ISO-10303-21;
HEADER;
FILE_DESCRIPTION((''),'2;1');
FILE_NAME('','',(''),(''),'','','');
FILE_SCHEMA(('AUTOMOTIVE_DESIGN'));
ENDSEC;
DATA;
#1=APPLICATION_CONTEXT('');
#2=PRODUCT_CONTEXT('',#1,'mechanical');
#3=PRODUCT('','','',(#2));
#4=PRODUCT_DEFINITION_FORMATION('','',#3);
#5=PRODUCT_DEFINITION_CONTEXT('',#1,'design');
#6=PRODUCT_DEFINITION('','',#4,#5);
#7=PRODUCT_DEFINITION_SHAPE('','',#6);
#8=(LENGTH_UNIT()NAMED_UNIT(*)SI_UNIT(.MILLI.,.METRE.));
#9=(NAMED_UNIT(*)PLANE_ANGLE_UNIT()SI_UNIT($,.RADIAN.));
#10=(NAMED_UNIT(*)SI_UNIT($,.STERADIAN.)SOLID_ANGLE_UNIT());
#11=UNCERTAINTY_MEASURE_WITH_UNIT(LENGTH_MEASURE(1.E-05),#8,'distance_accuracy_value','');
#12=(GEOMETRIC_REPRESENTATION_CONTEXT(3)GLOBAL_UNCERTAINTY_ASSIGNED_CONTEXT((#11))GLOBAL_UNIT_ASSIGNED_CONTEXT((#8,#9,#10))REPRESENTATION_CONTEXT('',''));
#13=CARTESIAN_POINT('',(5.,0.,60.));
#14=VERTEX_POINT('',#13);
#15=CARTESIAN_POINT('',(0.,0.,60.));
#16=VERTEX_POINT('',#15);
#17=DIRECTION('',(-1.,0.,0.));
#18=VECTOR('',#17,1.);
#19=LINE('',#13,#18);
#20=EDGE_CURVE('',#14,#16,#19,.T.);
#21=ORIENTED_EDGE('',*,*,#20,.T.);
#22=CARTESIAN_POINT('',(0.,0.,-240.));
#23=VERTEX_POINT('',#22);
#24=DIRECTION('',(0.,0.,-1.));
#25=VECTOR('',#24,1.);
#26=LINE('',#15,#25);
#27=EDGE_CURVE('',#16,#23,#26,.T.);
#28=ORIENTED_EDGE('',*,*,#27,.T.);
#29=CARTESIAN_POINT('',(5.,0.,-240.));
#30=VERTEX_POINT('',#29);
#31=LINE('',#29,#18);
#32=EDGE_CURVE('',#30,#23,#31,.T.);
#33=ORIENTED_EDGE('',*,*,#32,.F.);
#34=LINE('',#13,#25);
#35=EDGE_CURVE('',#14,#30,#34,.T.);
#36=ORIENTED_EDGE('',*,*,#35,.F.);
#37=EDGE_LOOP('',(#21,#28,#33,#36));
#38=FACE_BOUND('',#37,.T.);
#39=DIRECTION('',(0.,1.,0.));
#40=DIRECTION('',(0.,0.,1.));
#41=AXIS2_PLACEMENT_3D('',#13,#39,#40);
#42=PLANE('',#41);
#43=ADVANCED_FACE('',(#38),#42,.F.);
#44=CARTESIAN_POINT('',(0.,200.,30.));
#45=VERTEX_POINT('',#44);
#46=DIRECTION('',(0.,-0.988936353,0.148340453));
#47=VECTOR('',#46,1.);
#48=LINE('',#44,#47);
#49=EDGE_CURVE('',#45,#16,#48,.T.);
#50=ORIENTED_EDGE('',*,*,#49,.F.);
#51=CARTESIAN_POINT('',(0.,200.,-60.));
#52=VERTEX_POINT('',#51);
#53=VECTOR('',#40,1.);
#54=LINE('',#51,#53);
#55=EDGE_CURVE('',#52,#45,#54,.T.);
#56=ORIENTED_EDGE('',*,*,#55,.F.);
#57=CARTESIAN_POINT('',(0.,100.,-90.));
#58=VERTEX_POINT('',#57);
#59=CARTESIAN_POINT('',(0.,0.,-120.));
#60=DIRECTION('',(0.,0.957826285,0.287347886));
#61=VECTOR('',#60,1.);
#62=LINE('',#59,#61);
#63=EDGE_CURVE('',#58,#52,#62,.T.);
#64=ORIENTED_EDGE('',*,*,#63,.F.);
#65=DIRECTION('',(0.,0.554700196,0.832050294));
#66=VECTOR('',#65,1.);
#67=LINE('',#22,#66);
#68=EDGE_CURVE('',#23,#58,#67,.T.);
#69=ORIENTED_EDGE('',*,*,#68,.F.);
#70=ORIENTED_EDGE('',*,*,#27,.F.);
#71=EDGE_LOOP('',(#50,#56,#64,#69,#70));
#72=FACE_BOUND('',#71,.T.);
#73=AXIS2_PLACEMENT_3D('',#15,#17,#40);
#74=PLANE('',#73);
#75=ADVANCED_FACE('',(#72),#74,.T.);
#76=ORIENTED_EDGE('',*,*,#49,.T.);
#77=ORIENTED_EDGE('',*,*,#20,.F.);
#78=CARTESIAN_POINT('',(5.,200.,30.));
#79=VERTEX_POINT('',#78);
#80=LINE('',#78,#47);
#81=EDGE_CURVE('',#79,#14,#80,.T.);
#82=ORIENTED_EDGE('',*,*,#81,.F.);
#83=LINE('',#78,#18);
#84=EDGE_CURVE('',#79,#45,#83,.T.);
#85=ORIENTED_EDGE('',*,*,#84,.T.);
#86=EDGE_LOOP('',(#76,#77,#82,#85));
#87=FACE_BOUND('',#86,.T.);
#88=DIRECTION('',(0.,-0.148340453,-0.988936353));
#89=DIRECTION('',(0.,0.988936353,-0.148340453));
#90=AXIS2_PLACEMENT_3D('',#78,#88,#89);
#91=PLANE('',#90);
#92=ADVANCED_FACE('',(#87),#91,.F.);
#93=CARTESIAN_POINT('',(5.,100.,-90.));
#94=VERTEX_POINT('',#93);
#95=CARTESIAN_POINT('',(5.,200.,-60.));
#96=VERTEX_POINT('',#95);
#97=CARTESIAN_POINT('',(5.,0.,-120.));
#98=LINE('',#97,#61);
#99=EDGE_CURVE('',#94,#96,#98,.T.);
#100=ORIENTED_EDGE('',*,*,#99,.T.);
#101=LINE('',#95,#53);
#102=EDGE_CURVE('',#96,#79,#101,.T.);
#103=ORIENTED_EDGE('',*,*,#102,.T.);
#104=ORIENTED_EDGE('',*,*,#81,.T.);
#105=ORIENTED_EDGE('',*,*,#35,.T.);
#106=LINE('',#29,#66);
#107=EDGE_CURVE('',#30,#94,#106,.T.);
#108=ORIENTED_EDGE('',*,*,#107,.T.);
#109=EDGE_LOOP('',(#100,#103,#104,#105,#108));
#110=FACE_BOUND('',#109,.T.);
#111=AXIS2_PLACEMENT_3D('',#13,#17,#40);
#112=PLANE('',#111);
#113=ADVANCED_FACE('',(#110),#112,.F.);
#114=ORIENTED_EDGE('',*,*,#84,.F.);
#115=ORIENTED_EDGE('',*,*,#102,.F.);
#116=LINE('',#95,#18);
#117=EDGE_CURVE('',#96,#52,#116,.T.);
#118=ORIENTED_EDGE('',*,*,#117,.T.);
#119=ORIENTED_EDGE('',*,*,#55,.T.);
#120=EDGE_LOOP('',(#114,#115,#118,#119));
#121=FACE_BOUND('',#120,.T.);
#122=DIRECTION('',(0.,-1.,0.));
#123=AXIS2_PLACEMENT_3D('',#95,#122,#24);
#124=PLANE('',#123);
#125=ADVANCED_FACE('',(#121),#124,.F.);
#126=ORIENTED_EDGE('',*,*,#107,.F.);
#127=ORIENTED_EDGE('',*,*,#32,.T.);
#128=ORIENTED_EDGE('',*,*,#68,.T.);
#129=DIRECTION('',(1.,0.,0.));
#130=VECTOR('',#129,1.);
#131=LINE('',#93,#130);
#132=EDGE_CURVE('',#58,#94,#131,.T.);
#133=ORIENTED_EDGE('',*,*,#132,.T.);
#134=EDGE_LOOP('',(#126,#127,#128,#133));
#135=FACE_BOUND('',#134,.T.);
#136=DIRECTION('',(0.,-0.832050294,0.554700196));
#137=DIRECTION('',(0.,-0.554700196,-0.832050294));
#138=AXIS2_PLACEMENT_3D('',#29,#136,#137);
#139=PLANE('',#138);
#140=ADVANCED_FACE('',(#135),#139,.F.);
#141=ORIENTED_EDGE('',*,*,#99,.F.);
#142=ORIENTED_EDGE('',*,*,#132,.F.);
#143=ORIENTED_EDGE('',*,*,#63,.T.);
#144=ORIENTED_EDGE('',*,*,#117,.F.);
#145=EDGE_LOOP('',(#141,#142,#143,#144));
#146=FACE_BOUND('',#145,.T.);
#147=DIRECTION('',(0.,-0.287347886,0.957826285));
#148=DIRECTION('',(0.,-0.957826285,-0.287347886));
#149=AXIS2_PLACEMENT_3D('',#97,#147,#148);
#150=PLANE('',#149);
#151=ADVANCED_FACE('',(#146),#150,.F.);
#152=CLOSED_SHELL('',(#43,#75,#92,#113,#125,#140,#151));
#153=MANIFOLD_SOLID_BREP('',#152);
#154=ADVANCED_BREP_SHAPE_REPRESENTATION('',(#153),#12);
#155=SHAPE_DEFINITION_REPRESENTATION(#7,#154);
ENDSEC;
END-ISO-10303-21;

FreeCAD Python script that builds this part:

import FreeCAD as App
import Part
import Sketcher

V = App.Vector

doc = App.newDocument("Part")
body = doc.addObject("PartDesign::Body", "Body")

# Sketch on YZ plane
sketch1 = body.newObject("Sketcher::SketchObject", "Sketch")
sketch1.AttachmentSupport = (doc.getObject("YZ_Plane"), [""])
sketch1.MapMode = "FlatFace"
sketch1.addGeometry([
    Part.LineSegment(V(200, 30, 0), V(0, 60, 0)),  # 0
    Part.LineSegment(V(0, 60, 0), V(0, -240, 0)),  # 1
    Part.LineSegment(V(0, -240, 0), V(100, -90, 0)),  # 2
    Part.LineSegment(V(100, -90, 0), V(200, -60, 0)),  # 3
    Part.LineSegment(V(200, -60, 0), V(200, 30, 0)),  # 4
], False)
sketch1.addConstraint([
    Sketcher.Constraint("Coincident", 0, 2, 1, 1),
    Sketcher.Constraint("Coincident", 1, 2, 2, 1),
    Sketcher.Constraint("Coincident", 2, 2, 3, 1),
    Sketcher.Constraint("Coincident", 3, 2, 4, 1),
    Sketcher.Constraint("Coincident", 4, 2, 0, 1),
    Sketcher.Constraint("Vertical", 1),
    Sketcher.Constraint("Vertical", 4),
    Sketcher.Constraint("PointOnObject", 0, 2, -2),
    Sketcher.Constraint("DistanceY", 1, 2, 1, 1, 300.0),
    Sketcher.Constraint("DistanceY", 4, 1, 4, 2, 90.0),
    Sketcher.Constraint("DistanceY", -1, 1, 0, 2, 60.0),
    Sketcher.Constraint("DistanceX", -1, 1, 2, 2, 100.0),
    Sketcher.Constraint("DistanceY", 2, 2, -1, 1, 90.0),
    Sketcher.Constraint("DistanceX", -1, 1, 3, 2, 200.0),
    Sketcher.Constraint("DistanceY", 3, 2, -1, 1, 60.0),
])
pad1 = body.newObject("PartDesign::Pad", "Pad")
pad1.Profile = sketch1
pad1.Length = 5

doc.recompute()
